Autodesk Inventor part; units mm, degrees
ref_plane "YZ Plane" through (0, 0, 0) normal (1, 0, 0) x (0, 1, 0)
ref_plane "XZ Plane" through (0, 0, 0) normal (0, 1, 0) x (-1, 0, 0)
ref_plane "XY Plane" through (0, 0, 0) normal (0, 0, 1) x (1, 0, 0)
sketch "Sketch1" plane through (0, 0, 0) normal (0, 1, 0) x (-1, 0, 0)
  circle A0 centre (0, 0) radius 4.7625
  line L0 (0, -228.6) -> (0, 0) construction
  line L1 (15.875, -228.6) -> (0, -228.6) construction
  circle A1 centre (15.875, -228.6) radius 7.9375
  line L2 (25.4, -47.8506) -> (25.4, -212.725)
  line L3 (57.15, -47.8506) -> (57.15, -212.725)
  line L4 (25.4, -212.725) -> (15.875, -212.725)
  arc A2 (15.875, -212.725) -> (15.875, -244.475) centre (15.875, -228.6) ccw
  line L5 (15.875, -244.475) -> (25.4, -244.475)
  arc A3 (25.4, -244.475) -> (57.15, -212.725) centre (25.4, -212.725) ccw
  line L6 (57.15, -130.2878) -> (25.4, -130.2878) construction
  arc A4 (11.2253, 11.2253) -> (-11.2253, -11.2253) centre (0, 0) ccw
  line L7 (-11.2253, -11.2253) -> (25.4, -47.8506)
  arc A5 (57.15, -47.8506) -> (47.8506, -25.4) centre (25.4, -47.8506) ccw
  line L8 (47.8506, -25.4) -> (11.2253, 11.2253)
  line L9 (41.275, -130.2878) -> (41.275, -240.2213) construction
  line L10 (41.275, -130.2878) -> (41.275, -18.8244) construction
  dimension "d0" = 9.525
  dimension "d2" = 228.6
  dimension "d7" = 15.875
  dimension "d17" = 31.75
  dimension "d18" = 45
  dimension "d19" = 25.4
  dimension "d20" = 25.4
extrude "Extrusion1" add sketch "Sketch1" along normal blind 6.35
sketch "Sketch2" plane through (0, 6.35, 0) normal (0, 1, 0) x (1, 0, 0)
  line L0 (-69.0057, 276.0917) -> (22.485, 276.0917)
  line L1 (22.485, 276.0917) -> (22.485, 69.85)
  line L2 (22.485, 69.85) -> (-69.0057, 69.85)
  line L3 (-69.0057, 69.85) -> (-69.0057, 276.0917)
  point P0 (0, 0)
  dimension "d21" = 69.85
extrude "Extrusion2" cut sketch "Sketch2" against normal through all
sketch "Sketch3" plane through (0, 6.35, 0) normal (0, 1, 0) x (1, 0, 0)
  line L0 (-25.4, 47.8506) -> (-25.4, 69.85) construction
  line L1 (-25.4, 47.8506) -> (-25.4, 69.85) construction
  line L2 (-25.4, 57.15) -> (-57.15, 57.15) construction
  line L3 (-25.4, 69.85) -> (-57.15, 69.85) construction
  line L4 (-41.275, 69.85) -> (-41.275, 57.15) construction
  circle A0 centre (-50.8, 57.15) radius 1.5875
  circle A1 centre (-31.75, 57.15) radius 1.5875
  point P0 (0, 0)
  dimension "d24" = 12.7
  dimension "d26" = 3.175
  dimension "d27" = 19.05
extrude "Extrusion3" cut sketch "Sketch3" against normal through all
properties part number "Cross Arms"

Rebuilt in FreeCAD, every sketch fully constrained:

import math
import FreeCAD as App
import Part
import Sketcher
Q = App.Units.Quantity


def add_polygon(sketch, points):
    """Adds a closed chain of lines whose ends are joined by coincident constraints."""
    first, n = sketch.GeometryCount, len(points)
    for a, b in zip(points, points[1:] + points[:1]):
        sketch.addGeometry(Part.LineSegment(App.Vector(*a, 0), App.Vector(*b, 0)), False)
    for i in range(n):
        sketch.addConstraint(Sketcher.Constraint("Coincident", first + i, 2, first + (i + 1) % n, 1))

doc = App.newDocument("Part")
body = doc.addObject("PartDesign::Body", "Body")

sketch1 = doc.addObject("Sketcher::SketchObject", "Sketch")
body.addObject(sketch1)
sketch1.AttachmentSupport = (doc.XZ_Plane, [""])
sketch1.MapMode = "FlatFace"
sketch1.addGeometry([
    Part.LineSegment(App.Vector(11.2253, -11.2253, 0), App.Vector(-25.4, -47.8506, 0)),
    Part.LineSegment(App.Vector(-25.4, -47.8506, 0), App.Vector(-25.4, -212.725, 0)),
    Part.LineSegment(App.Vector(-25.4, -212.725, 0), App.Vector(-15.875, -212.725, 0)),
    Part.ArcOfCircle(Part.Circle(App.Vector(-15.875, -228.6, 0), App.Vector(0, 0, 1), 15.875), math.radians(-90), math.radians(90)),
    Part.LineSegment(App.Vector(-15.875, -244.475, 0), App.Vector(-25.4, -244.475, 0)),
    Part.ArcOfCircle(Part.Circle(App.Vector(-25.4, -212.725, 0), App.Vector(0, 0, 1), 31.75), math.radians(180), math.radians(270)),
    Part.LineSegment(App.Vector(-57.15, -212.725, 0), App.Vector(-57.15, -47.8506, 0)),
    Part.ArcOfCircle(Part.Circle(App.Vector(-25.4, -47.8506, 0), App.Vector(0, 0, 1), 31.75), math.radians(135), math.radians(180)),
    Part.LineSegment(App.Vector(-47.8506, -25.4, 0), App.Vector(-11.2253, 11.2253, 0)),
    Part.ArcOfCircle(Part.Circle(App.Vector(0, 0, 0), App.Vector(0, 0, 1), 15.874972), math.radians(-45), math.radians(135)),
    Part.Circle(App.Vector(-15.875, -228.6, 0), App.Vector(0, 0, 1), 7.9375),
    Part.Circle(App.Vector(0, 0, 0), App.Vector(0, 0, 1), 4.7625),
], False)
sketch1.addConstraint([
    Sketcher.Constraint("Coincident", 0, 2, 1, 1),
    Sketcher.Constraint("Coincident", 1, 2, 2, 1),
    Sketcher.Constraint("Tangent", 2, 2, 3, 2),
    Sketcher.Constraint("Tangent", 3, 1, 4, 1),
    Sketcher.Constraint("Tangent", 4, 2, 5, 2),
    Sketcher.Constraint("Tangent", 5, 1, 6, 1),
    Sketcher.Constraint("Tangent", 6, 2, 7, 2),
    Sketcher.Constraint("Tangent", 7, 1, 8, 1),
    Sketcher.Constraint("Tangent", 8, 2, 9, 2),
    Sketcher.Constraint("Tangent", 9, 1, 0, 1),
    Sketcher.Constraint("Vertical", 1),
    Sketcher.Constraint("Horizontal", 2),
    Sketcher.Constraint("Horizontal", 4),
    Sketcher.Constraint("Vertical", 6),
    Sketcher.Constraint("Coincident", 9, 3, -1, 1),
    Sketcher.Constraint("Coincident", 11, 3, -1, 1),
    Sketcher.Constraint("Coincident", 10, 3, 3, 3),
    Sketcher.Constraint("Coincident", 0, 2, 7, 3),
    Sketcher.Constraint("Coincident", 1, 2, 5, 3),
    Sketcher.Constraint("Equal", 3, 9),
    Sketcher.Constraint("Radius", 5, Q("1.25 in")),
    Sketcher.Constraint("Diameter", 10, Q("0.625 in")),
    Sketcher.Constraint("Diameter", 11, Q("0.375 in")),
    Sketcher.Constraint("DistanceY", 3, 3, -1, 1, Q("9 in")),
    Sketcher.Constraint("DistanceX", 5, 3, -1, 1, Q("1 in")),
    Sketcher.Constraint("DistanceY", 7, 1, -1, 1, Q("1 in")),
    Sketcher.Constraint("DistanceX", 2, 1, 2, 2, Q("0.375 in")),
])
pad1 = doc.addObject("PartDesign::Pad", "Pad")
body.addObject(pad1)
pad1.Profile = sketch1
pad1.Length = Q("0.25 in")
pad1.Reversed = True

sketch2 = doc.addObject("Sketcher::SketchObject", "Sketch001")
body.addObject(sketch2)
sketch2.AttachmentSupport = (doc.XZ_Plane, [""])
sketch2.MapMode = "FlatFace"
sketch2.AttachmentOffset = App.Placement(App.Vector(0, 0, -0.25 * 25.4), App.Rotation())
add_polygon(sketch2, [(22.485, -276.0917), (-69.0057, -276.0917), (-69.0057, -69.85), (22.485, -69.85)])
sketch2.addConstraint([
    Sketcher.Constraint("Horizontal", 0),
    Sketcher.Constraint("Vertical", 1),
    Sketcher.Constraint("Horizontal", 2),
    Sketcher.Constraint("Vertical", 3),
    Sketcher.Constraint("DistanceY", 1, 2, -1, 1, Q("2.75 in")),
    Sketcher.Constraint("DistanceX", 0, 2, 0, 1, Q("3.602 in")),
    Sketcher.Constraint("DistanceY", 1, 1, 1, 2, Q("206.2417 mm")),
    Sketcher.Constraint("DistanceX", 0, 2, -1, 1, Q("69.0057 mm")),
])
pocket1 = doc.addObject("PartDesign::Pocket", "Pocket")
body.addObject(pocket1)
pocket1.Profile = sketch2
pocket1.Type = "ThroughAll"
pocket1.Reversed = True

sketch3 = doc.addObject("Sketcher::SketchObject", "Sketch002")
body.addObject(sketch3)
sketch3.AttachmentSupport = (doc.XZ_Plane, [""])
sketch3.MapMode = "FlatFace"
sketch3.AttachmentOffset = App.Placement(App.Vector(0, 0, -0.25 * 25.4), App.Rotation())
sketch3.addGeometry([
    Part.Circle(App.Vector(-50.8, -57.15, 0), App.Vector(0, 0, 1), 1.5875),
    Part.Circle(App.Vector(-31.75, -57.15, 0), App.Vector(0, 0, 1), 1.5875),
], False)
sketch3.addConstraint([
    Sketcher.Constraint("Equal", 0, 1),
    Sketcher.Constraint("Horizontal", 0, 3, 1, 3),
    Sketcher.Constraint("Diameter", 0, Q("0.125 in")),
    Sketcher.Constraint("DistanceX", 0, 3, 1, 3, Q("0.75 in")),
    Sketcher.Constraint("DistanceX", 0, 3, -1, 1, Q("2 in")),
    Sketcher.Constraint("DistanceY", 0, 3, -1, 1, Q("2.25 in")),
])
pocket2 = doc.addObject("PartDesign::Pocket", "Pocket001")
body.addObject(pocket2)
pocket2.Profile = sketch3
pocket2.Type = "ThroughAll"
pocket2.Reversed = True

doc.recompute()
